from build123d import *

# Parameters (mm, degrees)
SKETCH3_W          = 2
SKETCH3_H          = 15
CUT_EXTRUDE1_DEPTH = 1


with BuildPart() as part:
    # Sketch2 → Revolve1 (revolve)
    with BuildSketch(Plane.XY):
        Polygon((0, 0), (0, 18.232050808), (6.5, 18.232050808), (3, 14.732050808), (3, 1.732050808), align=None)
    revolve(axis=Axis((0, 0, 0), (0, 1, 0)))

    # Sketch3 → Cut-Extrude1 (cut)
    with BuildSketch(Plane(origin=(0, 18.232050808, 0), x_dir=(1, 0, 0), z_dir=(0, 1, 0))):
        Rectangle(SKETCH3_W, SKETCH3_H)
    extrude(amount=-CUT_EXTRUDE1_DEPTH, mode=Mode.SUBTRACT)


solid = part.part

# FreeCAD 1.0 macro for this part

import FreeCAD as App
import Part
import Sketcher
from FreeCAD import Vector
Q = App.Units.Quantity


def add_polygon(sketch, points):
    """Adds a closed chain of lines whose ends are joined by coincident constraints."""
    first, n = sketch.GeometryCount, len(points)
    for a, b in zip(points, points[1:] + points[:1]):
        sketch.addGeometry(Part.LineSegment(App.Vector(*a, 0), App.Vector(*b, 0)), False)
    for i in range(n):
        sketch.addConstraint(Sketcher.Constraint("Coincident", first + i, 2, first + (i + 1) % n, 1))

doc = App.newDocument("Part")
params = doc.addObject("Spreadsheet::Sheet", "Params")
for row, (alias, value) in enumerate([
    ("sketch1_height", "13 mm"),
    ("sketch1_width", "6.5 mm"),
    ("revolution_angle", "360 deg"),
    ("sketch2_width", "2 mm"),
    ("sketch2_height", "15 mm"),
    ("pocket1_length", "1 mm"),
], start=1):
    params.set(f"A{row}", alias)
    params.set(f"B{row}", "=" + value)
    params.setAlias(f"B{row}", alias)

body = doc.addObject("PartDesign::Body", "Body")

# Sketch on XY plane
sketch1 = body.newObject("Sketcher::SketchObject", "Sketch")
sketch1.AttachmentSupport = (doc.getObject("XY_Plane"), [""])
sketch1.MapMode = "FlatFace"
add_polygon(sketch1, [(0, 18.232051), (0, 0), (3, 1.732051), (3, 14.732051), (6.5, 18.232051)])  # lines 0-4
sketch1.addConstraint([
    Sketcher.Constraint("Vertical", 0),
    Sketcher.Constraint("Vertical", 2),
    Sketcher.Constraint("Horizontal", 4),
    Sketcher.Constraint("Coincident", 0, 2, -1, 1),
    Sketcher.Constraint("DistanceY", 2, 1, 2, 2, 13.0),
    Sketcher.Constraint("Angle", 1, Q("30 deg")),
    Sketcher.Constraint("Angle", 3, Q("45 deg")),
    Sketcher.Constraint("DistanceX", 4, 2, 4, 1, 6.5),
    Sketcher.Constraint("DistanceX", -1, 1, 1, 2, 3.0),
])
sketch1.setExpression("Constraints[9]", "Params.sketch1_height")
sketch1.setExpression("Constraints[12]", "Params.sketch1_width")
revolution = body.newObject("PartDesign::Revolution", "Revolution")
revolution.Profile = sketch1
revolution.ReferenceAxis = (sketch1, ["V_Axis"])
revolution.setExpression("Angle", "Params.revolution_angle")

# Sketch on XZ plane
sketch2 = body.newObject("Sketcher::SketchObject", "Sketch001")
sketch2.AttachmentSupport = (doc.getObject("XZ_Plane"), [""])
sketch2.MapMode = "FlatFace"
sketch2.AttachmentOffset = App.Placement(Vector(0, 0, -18.232051), App.Rotation())
add_polygon(sketch2, [(-1, -7.5), (-1, 7.5), (1, 7.5), (1, -7.5)])  # lines 0-3
sketch2.addConstraint([
    Sketcher.Constraint("Vertical", 0),
    Sketcher.Constraint("Horizontal", 1),
    Sketcher.Constraint("Vertical", 2),
    Sketcher.Constraint("Horizontal", 3),
    Sketcher.Constraint("Symmetric", 0, 2, 2, 2, -1, 1),
    Sketcher.Constraint("DistanceX", 1, 1, 1, 2, 2.0),
    Sketcher.Constraint("DistanceY", 0, 1, 0, 2, 15.0),
])
sketch2.setExpression("Constraints[9]", "Params.sketch2_width")
sketch2.setExpression("Constraints[10]", "Params.sketch2_height")
pocket1 = body.newObject("PartDesign::Pocket", "Pocket")
pocket1.Profile = sketch2
pocket1.setExpression("Length", "Params.pocket1_length")
pocket1.Reversed = True

doc.recompute()
